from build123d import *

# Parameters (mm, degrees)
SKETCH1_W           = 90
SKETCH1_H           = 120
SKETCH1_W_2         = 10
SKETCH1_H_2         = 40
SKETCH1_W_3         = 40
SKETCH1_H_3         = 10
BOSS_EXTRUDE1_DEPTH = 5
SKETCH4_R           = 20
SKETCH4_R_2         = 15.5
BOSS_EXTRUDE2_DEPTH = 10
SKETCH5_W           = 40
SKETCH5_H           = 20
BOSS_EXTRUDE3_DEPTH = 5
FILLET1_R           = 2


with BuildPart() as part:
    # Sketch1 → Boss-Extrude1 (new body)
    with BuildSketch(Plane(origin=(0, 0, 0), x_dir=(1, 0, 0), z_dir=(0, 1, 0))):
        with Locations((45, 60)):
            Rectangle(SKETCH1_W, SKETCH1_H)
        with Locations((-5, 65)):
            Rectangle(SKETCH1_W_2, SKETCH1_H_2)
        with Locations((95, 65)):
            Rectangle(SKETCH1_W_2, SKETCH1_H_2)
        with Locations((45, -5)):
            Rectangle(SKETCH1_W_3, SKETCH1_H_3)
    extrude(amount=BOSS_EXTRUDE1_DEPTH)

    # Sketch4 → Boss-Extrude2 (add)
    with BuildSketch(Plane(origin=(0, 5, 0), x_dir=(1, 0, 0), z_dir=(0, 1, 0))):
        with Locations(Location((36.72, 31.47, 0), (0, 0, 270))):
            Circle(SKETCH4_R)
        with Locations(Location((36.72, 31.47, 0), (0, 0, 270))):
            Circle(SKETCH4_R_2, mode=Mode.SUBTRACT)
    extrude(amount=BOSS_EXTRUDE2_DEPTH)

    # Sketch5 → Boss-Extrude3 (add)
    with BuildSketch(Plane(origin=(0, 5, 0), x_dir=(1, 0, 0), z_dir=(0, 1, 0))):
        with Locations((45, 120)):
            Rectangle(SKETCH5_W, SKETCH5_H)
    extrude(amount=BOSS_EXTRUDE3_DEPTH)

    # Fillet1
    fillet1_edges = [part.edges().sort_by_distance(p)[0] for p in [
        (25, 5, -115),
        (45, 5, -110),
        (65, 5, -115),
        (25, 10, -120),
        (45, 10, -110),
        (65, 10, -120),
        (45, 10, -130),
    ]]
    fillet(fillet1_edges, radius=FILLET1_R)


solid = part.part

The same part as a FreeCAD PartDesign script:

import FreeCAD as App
import Part
import Sketcher

V = App.Vector
Q = App.Units.Quantity


def edges_at(feature, points):
    """Names of the edges that pass closest to the given points."""
    edges = feature.Shape.Edges
    near = lambda p: min(range(len(edges)), key=lambda i: edges[i].distToShape(Part.Vertex(*p))[0])
    return sorted({f"Edge{near(p) + 1}" for p in points})

doc = App.newDocument("Part")
params = doc.addObject("Spreadsheet::Sheet", "Params")
for row, (alias, value) in enumerate([
    ("sketch1_width", "25 mm"),
    ("sketch1_width2", "40 mm"),
    ("sketch1_width3", "10 mm"),
    ("sketch1_height", "45 mm"),
    ("sketch1_height2", "35 mm"),
    ("pad1_length", "5 mm"),
    ("sketch2_diameter", "40 mm"),
    ("sketch2_diameter2", "31 mm"),
    ("pad2_length", "10 mm"),
    ("sketch3_width", "40 mm"),
    ("sketch3_height", "20 mm"),
    ("pad3_length", "5 mm"),
    ("fillet_radius", "2 mm"),
], start=1):
    params.set(f"A{row}", alias)
    params.set(f"B{row}", "=" + value)
    params.setAlias(f"B{row}", alias)

body = doc.addObject("PartDesign::Body", "Body")

sketch1 = doc.addObject("Sketcher::SketchObject", "Sketch")
body.addObject(sketch1)
sketch1.AttachmentSupport = (doc.XZ_Plane, [""])
sketch1.MapMode = "FlatFace"
sketch1.addGeometry([
    Part.LineSegment(V(0, -45, 0), V(0, 0, 0)),
    Part.LineSegment(V(0, 0, 0), V(25, 0, 0)),
    Part.LineSegment(V(25, 0, 0), V(25, 10, 0)),
    Part.LineSegment(V(25, 10, 0), V(65, 10, 0)),
    Part.LineSegment(V(65, 10, 0), V(65, 0, 0)),
    Part.LineSegment(V(65, 0, 0), V(90, 0, 0)),
    Part.LineSegment(V(90, 0, 0), V(90, -45, 0)),
    Part.LineSegment(V(90, -45, 0), V(100, -45, 0)),
    Part.LineSegment(V(100, -45, 0), V(100, -85, 0)),
    Part.LineSegment(V(100, -85, 0), V(90, -85, 0)),
    Part.LineSegment(V(90, -85, 0), V(90, -120, 0)),
    Part.LineSegment(V(90, -120, 0), V(0, -120, 0)),
    Part.LineSegment(V(0, -120, 0), V(0, -85, 0)),
    Part.LineSegment(V(0, -85, 0), V(-10, -85, 0)),
    Part.LineSegment(V(-10, -85, 0), V(-10, -45, 0)),
    Part.LineSegment(V(-10, -45, 0), V(0, -45, 0)),
], False)
sketch1.addConstraint([
    Sketcher.Constraint("Coincident", 0, 2, 1, 1),
    Sketcher.Constraint("Coincident", 1, 2, 2, 1),
    Sketcher.Constraint("Coincident", 2, 2, 3, 1),
    Sketcher.Constraint("Coincident", 3, 2, 4, 1),
    Sketcher.Constraint("Coincident", 4, 2, 5, 1),
    Sketcher.Constraint("Coincident", 5, 2, 6, 1),
    Sketcher.Constraint("Coincident", 6, 2, 7, 1),
    Sketcher.Constraint("Coincident", 7, 2, 8, 1),
    Sketcher.Constraint("Coincident", 8, 2, 9, 1),
    Sketcher.Constraint("Coincident", 9, 2, 10, 1),
    Sketcher.Constraint("Coincident", 10, 2, 11, 1),
    Sketcher.Constraint("Coincident", 11, 2, 12, 1),
    Sketcher.Constraint("Coincident", 12, 2, 13, 1),
    Sketcher.Constraint("Coincident", 13, 2, 14, 1),
    Sketcher.Constraint("Coincident", 14, 2, 15, 1),
    Sketcher.Constraint("Coincident", 15, 2, 0, 1),
    Sketcher.Constraint("Vertical", 0),
    Sketcher.Constraint("Horizontal", 1),
    Sketcher.Constraint("Vertical", 2),
    Sketcher.Constraint("Horizontal", 3),
    Sketcher.Constraint("Vertical", 4),
    Sketcher.Constraint("Horizontal", 5),
    Sketcher.Constraint("Vertical", 6),
    Sketcher.Constraint("Horizontal", 7),
    Sketcher.Constraint("Vertical", 8),
    Sketcher.Constraint("Horizontal", 9),
    Sketcher.Constraint("Vertical", 10),
    Sketcher.Constraint("Horizontal", 11),
    Sketcher.Constraint("Vertical", 12),
    Sketcher.Constraint("Horizontal", 13),
    Sketcher.Constraint("Vertical", 14),
    Sketcher.Constraint("Horizontal", 15),
    Sketcher.Constraint("Coincident", 0, 2, -1, 1),
    Sketcher.Constraint("PointOnObject", 4, 2, -1),
    Sketcher.Constraint("PointOnObject", 11, 2, -2),
    Sketcher.Constraint("Horizontal", 9, 2, 12, 2),
    Sketcher.Constraint("Horizontal", 7, 2, 14, 2),
    Sketcher.Constraint("Vertical", 6, 2, 9, 2),
    Sketcher.Constraint("Equal", 1, 5),
    Sketcher.Constraint("Equal", 9, 13),
    Sketcher.Constraint("Equal", 15, 2),
    Sketcher.Constraint("Equal", 3, 8),
    Sketcher.Constraint("DistanceX", 1, 1, 1, 2, Q("25 mm")),
    Sketcher.Constraint("DistanceX", 3, 1, 3, 2, Q("40 mm")),
    Sketcher.Constraint("DistanceX", 7, 1, 7, 2, Q("10 mm")),
    Sketcher.Constraint("DistanceY", 0, 1, 0, 2, Q("45 mm")),
    Sketcher.Constraint("DistanceY", 10, 2, 10, 1, Q("35 mm")),
])
sketch1.setExpression("Constraints[42]", "Params.sketch1_width")
sketch1.setExpression("Constraints[43]", "Params.sketch1_width2")
sketch1.setExpression("Constraints[44]", "Params.sketch1_width3")
sketch1.setExpression("Constraints[45]", "Params.sketch1_height")
sketch1.setExpression("Constraints[46]", "Params.sketch1_height2")
pad1 = doc.addObject("PartDesign::Pad", "Pad")
body.addObject(pad1)
pad1.Profile = sketch1
pad1.setExpression("Length", "Params.pad1_length")
pad1.Reversed = True

sketch2 = doc.addObject("Sketcher::SketchObject", "Sketch001")
body.addObject(sketch2)
sketch2.AttachmentSupport = (doc.XZ_Plane, [""])
sketch2.MapMode = "FlatFace"
sketch2.AttachmentOffset = App.Placement(V(0, 0, -5), App.Rotation())
sketch2.addGeometry([
    Part.Circle(V(37, -31, 0), V(0, 0, 1), 20),
    Part.Circle(V(37, -31, 0), V(0, 0, 1), 16),
], False)
sketch2.addConstraint([
    Sketcher.Constraint("Coincident", 1, 3, 0, 3),
    Sketcher.Constraint("Diameter", 0, Q("40 mm")),
    Sketcher.Constraint("Diameter", 1, Q("31 mm")),
    Sketcher.Constraint("DistanceX", -1, 1, 0, 3, Q("36.72 mm")),
    Sketcher.Constraint("DistanceY", 0, 3, -1, 1, Q("31.47 mm")),
])
sketch2.setExpression("Constraints[1]", "Params.sketch2_diameter")
sketch2.setExpression("Constraints[2]", "Params.sketch2_diameter2")
pad2 = doc.addObject("PartDesign::Pad", "Pad001")
body.addObject(pad2)
pad2.Profile = sketch2
pad2.setExpression("Length", "Params.pad2_length")
pad2.Reversed = True

sketch3 = doc.addObject("Sketcher::SketchObject", "Sketch002")
body.addObject(sketch3)
sketch3.AttachmentSupport = (doc.XZ_Plane, [""])
sketch3.MapMode = "FlatFace"
sketch3.AttachmentOffset = App.Placement(V(0, 0, -5), App.Rotation())
sketch3.addGeometry([
    Part.LineSegment(V(25, -130, 0), V(25, -110, 0)),
    Part.LineSegment(V(25, -110, 0), V(65, -110, 0)),
    Part.LineSegment(V(65, -110, 0), V(65, -130, 0)),
    Part.LineSegment(V(65, -130, 0), V(25, -130, 0)),
], False)
sketch3.addConstraint([
    Sketcher.Constraint("Coincident", 0, 2, 1, 1),
    Sketcher.Constraint("Coincident", 1, 2, 2, 1),
    Sketcher.Constraint("Coincident", 2, 2, 3, 1),
    Sketcher.Constraint("Coincident", 3, 2, 0, 1),
    Sketcher.Constraint("Vertical", 0),
    Sketcher.Constraint("Horizontal", 1),
    Sketcher.Constraint("Vertical", 2),
    Sketcher.Constraint("Horizontal", 3),
    Sketcher.Constraint("DistanceX", 1, 1, 1, 2, Q("40 mm")),
    Sketcher.Constraint("DistanceY", 0, 1, 0, 2, Q("20 mm")),
    Sketcher.Constraint("DistanceX", -1, 1, 0, 2, Q("25 mm")),
    Sketcher.Constraint("DistanceY", 0, 2, -1, 1, Q("110 mm")),
])
sketch3.setExpression("Constraints[8]", "Params.sketch3_width")
sketch3.setExpression("Constraints[9]", "Params.sketch3_height")
pad3 = doc.addObject("PartDesign::Pad", "Pad002")
body.addObject(pad3)
pad3.Profile = sketch3
pad3.setExpression("Length", "Params.pad3_length")
pad3.Reversed = True
doc.recompute()

fillet = doc.addObject("PartDesign::Fillet", "Fillet")
body.addObject(fillet)
fillet.Base = (pad3, edges_at(pad3, [
    (25, 5, -115),
    (45, 5, -110),
    (65, 5, -115),
    (25, 10, -120),
    (45, 10, -110),
    (65, 10, -120),
    (45, 10, -130),
]))
fillet.setExpression("Radius", "Params.fillet_radius")

doc.recompute()
